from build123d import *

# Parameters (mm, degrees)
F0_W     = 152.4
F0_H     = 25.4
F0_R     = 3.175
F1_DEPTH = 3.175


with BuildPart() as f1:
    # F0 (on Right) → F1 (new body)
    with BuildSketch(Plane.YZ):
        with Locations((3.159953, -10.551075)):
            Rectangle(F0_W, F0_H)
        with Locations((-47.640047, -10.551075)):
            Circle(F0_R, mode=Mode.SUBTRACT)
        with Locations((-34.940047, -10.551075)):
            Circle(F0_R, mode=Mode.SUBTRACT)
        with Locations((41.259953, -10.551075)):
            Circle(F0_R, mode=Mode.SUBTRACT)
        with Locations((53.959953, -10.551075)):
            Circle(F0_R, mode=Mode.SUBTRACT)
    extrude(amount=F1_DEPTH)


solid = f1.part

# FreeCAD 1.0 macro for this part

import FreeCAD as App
import Part
import Sketcher
Q = App.Units.Quantity


def add_polygon(sketch, points):
    """Adds a closed chain of lines whose ends are joined by coincident constraints."""
    first, n = sketch.GeometryCount, len(points)
    for a, b in zip(points, points[1:] + points[:1]):
        sketch.addGeometry(Part.LineSegment(App.Vector(*a, 0), App.Vector(*b, 0)), False)
    for i in range(n):
        sketch.addConstraint(Sketcher.Constraint("Coincident", first + i, 2, first + (i + 1) % n, 1))

doc = App.newDocument("Part")
body = doc.addObject("PartDesign::Body", "Body")

sketch1 = doc.addObject("Sketcher::SketchObject", "Sketch")
body.addObject(sketch1)
sketch1.AttachmentSupport = (doc.YZ_Plane, [""])
sketch1.MapMode = "FlatFace"
add_polygon(sketch1, [(-73, 2.1), (-73, -23.3), (79.4, -23.3), (79.4, 2.1)])
sketch1.addGeometry(Part.Circle(App.Vector(-47.6, -10.6, 0), App.Vector(0, 0, 1), 3.2), False)
sketch1.addGeometry(Part.Circle(App.Vector(-34.9, -10.6, 0), App.Vector(0, 0, 1), 3.2), False)
sketch1.addGeometry(Part.Circle(App.Vector(41.3, -10.6, 0), App.Vector(0, 0, 1), 3.2), False)
sketch1.addGeometry(Part.Circle(App.Vector(54, -10.6, 0), App.Vector(0, 0, 1), 3.2), False)
sketch1.addConstraint([
    Sketcher.Constraint("Vertical", 0),
    Sketcher.Constraint("Horizontal", 1),
    Sketcher.Constraint("Vertical", 2),
    Sketcher.Constraint("Horizontal", 3),
    Sketcher.Constraint("Equal", 4, 5),
    Sketcher.Constraint("Equal", 5, 6),
    Sketcher.Constraint("Equal", 6, 7),
    Sketcher.Constraint("Horizontal", 4, 3, 5, 3),
    Sketcher.Constraint("Horizontal", 5, 3, 6, 3),
    Sketcher.Constraint("Horizontal", 6, 3, 7, 3),
    Sketcher.Constraint("Diameter", 4, Q("0.25 in")),
    Sketcher.Constraint("DistanceX", 1, 1, 1, 2, Q("6 in")),
    Sketcher.Constraint("DistanceY", 0, 2, 0, 1, Q("1 in")),
    Sketcher.Constraint("DistanceX", 5, 3, 6, 3, Q("3 in")),
    Sketcher.Constraint("DistanceX", 4, 3, 7, 3, Q("4 in")),
    Sketcher.Constraint("DistanceX", 0, 2, 4, 3, Q("1 in")),
    Sketcher.Constraint("DistanceX", 4, 3, 5, 3, Q("0.5 in")),
    Sketcher.Constraint("DistanceY", 0, 2, 4, 3, Q("0.5 in")),
    Sketcher.Constraint("DistanceX", 4, 3, -1, 1, 47.640047),
    Sketcher.Constraint("DistanceY", 4, 3, -1, 1, 10.551075),
])
pad1 = doc.addObject("PartDesign::Pad", "Pad")
body.addObject(pad1)
pad1.Profile = sketch1
pad1.Length = Q("0.125 in")

doc.recompute()
